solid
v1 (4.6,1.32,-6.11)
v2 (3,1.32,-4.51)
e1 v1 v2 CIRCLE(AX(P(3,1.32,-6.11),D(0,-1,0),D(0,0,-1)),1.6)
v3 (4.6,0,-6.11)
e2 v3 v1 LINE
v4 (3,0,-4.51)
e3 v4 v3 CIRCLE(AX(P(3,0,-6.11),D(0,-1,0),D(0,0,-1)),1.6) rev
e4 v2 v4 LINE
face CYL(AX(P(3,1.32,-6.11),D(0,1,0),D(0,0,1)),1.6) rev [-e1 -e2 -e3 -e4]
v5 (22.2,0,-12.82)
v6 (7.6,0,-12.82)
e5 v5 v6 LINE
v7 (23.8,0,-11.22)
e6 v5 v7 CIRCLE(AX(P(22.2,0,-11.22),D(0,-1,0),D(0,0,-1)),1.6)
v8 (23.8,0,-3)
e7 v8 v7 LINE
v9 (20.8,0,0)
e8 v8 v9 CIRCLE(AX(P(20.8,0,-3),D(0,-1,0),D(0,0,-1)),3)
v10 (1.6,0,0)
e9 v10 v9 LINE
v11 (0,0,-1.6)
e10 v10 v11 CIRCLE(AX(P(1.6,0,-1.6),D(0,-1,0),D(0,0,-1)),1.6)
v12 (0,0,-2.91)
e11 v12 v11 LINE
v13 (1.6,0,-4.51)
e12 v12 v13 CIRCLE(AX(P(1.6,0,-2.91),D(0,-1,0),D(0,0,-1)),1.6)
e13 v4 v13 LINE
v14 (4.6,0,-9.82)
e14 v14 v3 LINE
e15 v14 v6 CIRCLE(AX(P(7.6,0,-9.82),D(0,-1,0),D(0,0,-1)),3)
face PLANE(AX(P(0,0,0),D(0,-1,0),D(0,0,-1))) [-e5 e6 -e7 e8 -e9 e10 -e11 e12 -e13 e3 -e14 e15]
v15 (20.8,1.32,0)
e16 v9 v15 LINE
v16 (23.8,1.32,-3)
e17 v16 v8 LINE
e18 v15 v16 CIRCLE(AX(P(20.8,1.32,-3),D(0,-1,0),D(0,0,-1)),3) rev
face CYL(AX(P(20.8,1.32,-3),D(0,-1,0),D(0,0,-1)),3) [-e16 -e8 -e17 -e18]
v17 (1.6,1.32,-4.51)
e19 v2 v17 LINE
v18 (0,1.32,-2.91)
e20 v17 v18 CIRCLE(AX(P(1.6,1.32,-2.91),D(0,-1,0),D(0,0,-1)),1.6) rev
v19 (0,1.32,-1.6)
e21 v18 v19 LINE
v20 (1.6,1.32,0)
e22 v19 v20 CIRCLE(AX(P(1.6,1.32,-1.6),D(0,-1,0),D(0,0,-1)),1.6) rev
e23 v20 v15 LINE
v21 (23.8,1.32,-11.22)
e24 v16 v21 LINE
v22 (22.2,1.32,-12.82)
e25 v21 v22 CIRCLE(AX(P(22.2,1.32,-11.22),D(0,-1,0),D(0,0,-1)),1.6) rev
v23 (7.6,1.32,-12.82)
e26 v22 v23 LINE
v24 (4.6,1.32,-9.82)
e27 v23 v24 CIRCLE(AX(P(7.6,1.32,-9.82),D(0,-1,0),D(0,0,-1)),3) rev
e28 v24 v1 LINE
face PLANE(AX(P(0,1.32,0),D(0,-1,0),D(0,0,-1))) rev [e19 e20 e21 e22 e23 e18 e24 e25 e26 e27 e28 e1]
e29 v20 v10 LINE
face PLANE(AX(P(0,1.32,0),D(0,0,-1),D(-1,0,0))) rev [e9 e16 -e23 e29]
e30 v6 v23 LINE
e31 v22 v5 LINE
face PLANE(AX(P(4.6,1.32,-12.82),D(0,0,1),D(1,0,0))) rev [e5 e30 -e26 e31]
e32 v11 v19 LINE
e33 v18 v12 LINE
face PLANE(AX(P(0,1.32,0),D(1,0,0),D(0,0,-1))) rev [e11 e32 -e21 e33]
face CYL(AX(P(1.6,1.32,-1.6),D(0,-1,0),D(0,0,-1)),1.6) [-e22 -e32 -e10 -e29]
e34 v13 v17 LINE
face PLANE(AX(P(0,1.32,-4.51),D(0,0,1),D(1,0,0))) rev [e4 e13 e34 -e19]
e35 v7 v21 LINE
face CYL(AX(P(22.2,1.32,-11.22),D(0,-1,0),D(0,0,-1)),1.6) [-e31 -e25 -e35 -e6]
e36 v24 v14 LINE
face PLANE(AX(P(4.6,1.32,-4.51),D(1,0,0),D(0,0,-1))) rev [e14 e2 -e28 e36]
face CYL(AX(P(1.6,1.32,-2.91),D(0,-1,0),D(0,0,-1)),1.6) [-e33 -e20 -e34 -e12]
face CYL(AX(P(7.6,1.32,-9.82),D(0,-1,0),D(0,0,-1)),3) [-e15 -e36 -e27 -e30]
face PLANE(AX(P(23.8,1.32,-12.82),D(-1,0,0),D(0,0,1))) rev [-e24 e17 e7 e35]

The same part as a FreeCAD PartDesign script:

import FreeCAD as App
import Part
import Sketcher


def edges_at(feature, points):
    """Names of the edges that pass closest to the given points."""
    edges = feature.Shape.Edges
    near = lambda p: min(range(len(edges)), key=lambda i: edges[i].distToShape(Part.Vertex(*p))[0])
    return sorted({f"Edge{near(p) + 1}" for p in points})

doc = App.newDocument("Part")
body = doc.addObject("PartDesign::Body", "Body")

sketch1 = body.newObject("Sketcher::SketchObject", "Sketch")
sketch1.AttachmentSupport = (doc.getObject("XZ_Plane"), [""])
sketch1.MapMode = "FlatFace"
sketch1.addGeometry([
    Part.LineSegment(App.Vector(0, -4.5, 0), App.Vector(0, 0, 0)),
    Part.LineSegment(App.Vector(0, 0, 0), App.Vector(23.8, 0, 0)),
    Part.LineSegment(App.Vector(23.8, 0, 0), App.Vector(23.8, -12.8, 0)),
    Part.LineSegment(App.Vector(23.8, -12.8, 0), App.Vector(4.6, -12.8, 0)),
    Part.LineSegment(App.Vector(4.6, -12.8, 0), App.Vector(4.6, -4.5, 0)),
    Part.LineSegment(App.Vector(4.6, -4.5, 0), App.Vector(0, -4.5, 0)),
], False)
sketch1.addConstraint([
    Sketcher.Constraint("Coincident", 0, 2, 1, 1),
    Sketcher.Constraint("Coincident", 1, 2, 2, 1),
    Sketcher.Constraint("Coincident", 2, 2, 3, 1),
    Sketcher.Constraint("Coincident", 3, 2, 4, 1),
    Sketcher.Constraint("Coincident", 4, 2, 5, 1),
    Sketcher.Constraint("Coincident", 5, 2, 0, 1),
    Sketcher.Constraint("Vertical", 0),
    Sketcher.Constraint("Horizontal", 1),
    Sketcher.Constraint("Vertical", 2),
    Sketcher.Constraint("Horizontal", 3),
    Sketcher.Constraint("Vertical", 4),
    Sketcher.Constraint("Horizontal", 5),
    Sketcher.Constraint("Coincident", 0, 2, -1, 1),
    Sketcher.Constraint("DistanceX", 1, 1, 1, 2, 23.8),
    Sketcher.Constraint("DistanceX", 3, 2, 3, 1, 19.2),
    Sketcher.Constraint("DistanceY", 0, 1, 0, 2, 4.51),
    Sketcher.Constraint("DistanceY", 2, 2, 2, 1, 12.82),
])
pad1 = body.newObject("PartDesign::Pad", "Pad")
pad1.Profile = sketch1
pad1.Length = 1.32
pad1.Reversed = True
doc.recompute()

fillet = body.newObject("PartDesign::Fillet", "Fillet")
fillet.Base = (pad1, edges_at(pad1, [(4.6, 0.66, -12.82), (23.8, 0.66, 0)]))
fillet.Radius = 3
doc.recompute()

fillet2 = body.newObject("PartDesign::Fillet", "Fillet001")
fillet2.Base = (fillet, edges_at(fillet, [
    (0, 0.66, -4.51),
    (4.6, 0.66, -4.51),
    (23.8, 0.66, -12.82),
    (0, 0.66, 0),
]))
fillet2.Radius = 1.6

doc.recompute()
